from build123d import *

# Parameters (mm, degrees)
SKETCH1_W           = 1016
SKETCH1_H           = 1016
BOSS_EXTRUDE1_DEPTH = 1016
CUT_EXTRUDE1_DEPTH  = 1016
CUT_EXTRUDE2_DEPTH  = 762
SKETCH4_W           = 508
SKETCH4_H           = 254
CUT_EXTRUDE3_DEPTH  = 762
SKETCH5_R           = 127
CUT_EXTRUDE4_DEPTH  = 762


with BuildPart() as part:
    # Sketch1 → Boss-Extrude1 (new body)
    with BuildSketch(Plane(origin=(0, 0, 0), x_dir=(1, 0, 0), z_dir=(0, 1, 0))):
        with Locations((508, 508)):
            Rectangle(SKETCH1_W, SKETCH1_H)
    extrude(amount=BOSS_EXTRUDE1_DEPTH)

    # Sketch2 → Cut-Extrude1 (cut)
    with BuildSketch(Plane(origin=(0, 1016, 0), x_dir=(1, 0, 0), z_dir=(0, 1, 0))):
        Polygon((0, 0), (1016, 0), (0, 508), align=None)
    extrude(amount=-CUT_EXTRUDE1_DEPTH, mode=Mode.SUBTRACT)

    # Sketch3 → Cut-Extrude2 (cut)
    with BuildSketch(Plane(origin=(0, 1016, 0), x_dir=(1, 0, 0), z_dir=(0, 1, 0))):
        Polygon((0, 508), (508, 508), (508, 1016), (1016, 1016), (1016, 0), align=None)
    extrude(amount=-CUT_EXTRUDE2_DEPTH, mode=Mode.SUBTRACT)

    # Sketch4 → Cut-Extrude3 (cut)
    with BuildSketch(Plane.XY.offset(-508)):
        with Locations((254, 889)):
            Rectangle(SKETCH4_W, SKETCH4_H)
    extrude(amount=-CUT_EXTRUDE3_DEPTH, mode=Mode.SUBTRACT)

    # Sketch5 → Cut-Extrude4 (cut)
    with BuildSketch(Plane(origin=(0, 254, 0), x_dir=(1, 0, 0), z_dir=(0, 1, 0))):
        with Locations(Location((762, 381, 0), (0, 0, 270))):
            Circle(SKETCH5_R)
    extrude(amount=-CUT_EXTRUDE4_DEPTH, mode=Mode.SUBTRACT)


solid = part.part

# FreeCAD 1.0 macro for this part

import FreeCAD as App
import Part
import Sketcher
from FreeCAD import Vector
Q = App.Units.Quantity


def add_polygon(sketch, points):
    """Adds a closed chain of lines whose ends are joined by coincident constraints."""
    first, n = sketch.GeometryCount, len(points)
    for a, b in zip(points, points[1:] + points[:1]):
        sketch.addGeometry(Part.LineSegment(App.Vector(*a, 0), App.Vector(*b, 0)), False)
    for i in range(n):
        sketch.addConstraint(Sketcher.Constraint("Coincident", first + i, 2, first + (i + 1) % n, 1))

doc = App.newDocument("Part")
body = doc.addObject("PartDesign::Body", "Body")

sketch1 = doc.addObject("Sketcher::SketchObject", "Sketch")
body.addObject(sketch1)
sketch1.AttachmentSupport = (doc.XZ_Plane, [""])
sketch1.MapMode = "FlatFace"
add_polygon(sketch1, [(0, -1016), (0, 0), (1016, 0), (1016, -1016)])
sketch1.addConstraint([
    Sketcher.Constraint("Vertical", 0),
    Sketcher.Constraint("Horizontal", 1),
    Sketcher.Constraint("Vertical", 2),
    Sketcher.Constraint("Horizontal", 3),
    Sketcher.Constraint("Coincident", 0, 2, -1, 1),
    Sketcher.Constraint("Equal", 3, 0),
    Sketcher.Constraint("DistanceX", 1, 1, 1, 2, Q("40 in")),
])
pad1 = doc.addObject("PartDesign::Pad", "Pad")
body.addObject(pad1)
pad1.Profile = sketch1
pad1.Length = Q("40 in")
pad1.Reversed = True

sketch2 = doc.addObject("Sketcher::SketchObject", "Sketch001")
body.addObject(sketch2)
sketch2.AttachmentSupport = (doc.XZ_Plane, [""])
sketch2.MapMode = "FlatFace"
sketch2.AttachmentOffset = App.Placement(Vector(0, 0, -40 * 25.4), App.Rotation())
add_polygon(sketch2, [(0, 0), (1016, 0), (0, -508)])
sketch2.addConstraint([
    Sketcher.Constraint("Horizontal", 0),
    Sketcher.Constraint("Vertical", 2),
    Sketcher.Constraint("Coincident", 2, 2, -1, 1),
    Sketcher.Constraint("DistanceX", 0, 1, 0, 2, Q("40 in")),
    Sketcher.Constraint("DistanceY", 2, 1, 2, 2, Q("20 in")),
])
pocket1 = doc.addObject("PartDesign::Pocket", "Pocket")
body.addObject(pocket1)
pocket1.Profile = sketch2
pocket1.Length = Q("40 in")
pocket1.Reversed = True

sketch3 = doc.addObject("Sketcher::SketchObject", "Sketch002")
body.addObject(sketch3)
sketch3.AttachmentSupport = (doc.XZ_Plane, [""])
sketch3.MapMode = "FlatFace"
sketch3.AttachmentOffset = App.Placement(Vector(0, 0, -40 * 25.4), App.Rotation())
add_polygon(sketch3, [(508, -508), (0, -508), (1016, 0), (1016, -1016), (508, -1016)])
sketch3.addConstraint([
    Sketcher.Constraint("Horizontal", 0),
    Sketcher.Constraint("Vertical", 2),
    Sketcher.Constraint("Horizontal", 3),
    Sketcher.Constraint("Vertical", 4),
    Sketcher.Constraint("PointOnObject", 0, 2, -2),
    Sketcher.Constraint("PointOnObject", 1, 2, -1),
    Sketcher.Constraint("Equal", 0, 3),
    Sketcher.Constraint("Equal", 3, 4),
    Sketcher.Constraint("DistanceX", 0, 2, 0, 1, Q("20 in")),
    Sketcher.Constraint("DistanceY", 2, 2, 2, 1, Q("40 in")),
])
pocket2 = doc.addObject("PartDesign::Pocket", "Pocket001")
body.addObject(pocket2)
pocket2.Profile = sketch3
pocket2.Length = Q("30 in")
pocket2.Reversed = True

sketch4 = doc.addObject("Sketcher::SketchObject", "Sketch003")
body.addObject(sketch4)
sketch4.AttachmentSupport = (doc.XY_Plane, [""])
sketch4.MapMode = "FlatFace"
sketch4.AttachmentOffset = App.Placement(Vector(0, 0, -20 * 25.4), App.Rotation())
add_polygon(sketch4, [(0, 1016), (0, 762), (508, 762), (508, 1016)])
sketch4.addConstraint([
    Sketcher.Constraint("Vertical", 0),
    Sketcher.Constraint("Horizontal", 1),
    Sketcher.Constraint("Vertical", 2),
    Sketcher.Constraint("Horizontal", 3),
    Sketcher.Constraint("PointOnObject", 0, 2, -2),
    Sketcher.Constraint("DistanceX", 1, 1, 1, 2, Q("20 in")),
    Sketcher.Constraint("DistanceY", 0, 2, 0, 1, Q("10 in")),
    Sketcher.Constraint("DistanceY", -1, 1, 0, 2, Q("30 in")),
])
pocket3 = doc.addObject("PartDesign::Pocket", "Pocket002")
body.addObject(pocket3)
pocket3.Profile = sketch4
pocket3.Length = Q("30 in")

sketch5 = doc.addObject("Sketcher::SketchObject", "Sketch004")
body.addObject(sketch5)
sketch5.AttachmentSupport = (doc.XZ_Plane, [""])
sketch5.MapMode = "FlatFace"
sketch5.AttachmentOffset = App.Placement(Vector(0, 0, -10 * 25.4), App.Rotation())
sketch5.addGeometry(Part.Circle(Vector(762, -381, 0), Vector(0, 0, 1), 127), False)
sketch5.addConstraint([
    Sketcher.Constraint("Diameter", 0, Q("10 in")),
    Sketcher.Constraint("DistanceX", -1, 1, 0, 3, Q("30 in")),
    Sketcher.Constraint("DistanceY", 0, 3, -1, 1, Q("15 in")),
])
pocket4 = doc.addObject("PartDesign::Pocket", "Pocket003")
body.addObject(pocket4)
pocket4.Profile = sketch5
pocket4.Length = Q("30 in")
pocket4.Reversed = True

doc.recompute()
